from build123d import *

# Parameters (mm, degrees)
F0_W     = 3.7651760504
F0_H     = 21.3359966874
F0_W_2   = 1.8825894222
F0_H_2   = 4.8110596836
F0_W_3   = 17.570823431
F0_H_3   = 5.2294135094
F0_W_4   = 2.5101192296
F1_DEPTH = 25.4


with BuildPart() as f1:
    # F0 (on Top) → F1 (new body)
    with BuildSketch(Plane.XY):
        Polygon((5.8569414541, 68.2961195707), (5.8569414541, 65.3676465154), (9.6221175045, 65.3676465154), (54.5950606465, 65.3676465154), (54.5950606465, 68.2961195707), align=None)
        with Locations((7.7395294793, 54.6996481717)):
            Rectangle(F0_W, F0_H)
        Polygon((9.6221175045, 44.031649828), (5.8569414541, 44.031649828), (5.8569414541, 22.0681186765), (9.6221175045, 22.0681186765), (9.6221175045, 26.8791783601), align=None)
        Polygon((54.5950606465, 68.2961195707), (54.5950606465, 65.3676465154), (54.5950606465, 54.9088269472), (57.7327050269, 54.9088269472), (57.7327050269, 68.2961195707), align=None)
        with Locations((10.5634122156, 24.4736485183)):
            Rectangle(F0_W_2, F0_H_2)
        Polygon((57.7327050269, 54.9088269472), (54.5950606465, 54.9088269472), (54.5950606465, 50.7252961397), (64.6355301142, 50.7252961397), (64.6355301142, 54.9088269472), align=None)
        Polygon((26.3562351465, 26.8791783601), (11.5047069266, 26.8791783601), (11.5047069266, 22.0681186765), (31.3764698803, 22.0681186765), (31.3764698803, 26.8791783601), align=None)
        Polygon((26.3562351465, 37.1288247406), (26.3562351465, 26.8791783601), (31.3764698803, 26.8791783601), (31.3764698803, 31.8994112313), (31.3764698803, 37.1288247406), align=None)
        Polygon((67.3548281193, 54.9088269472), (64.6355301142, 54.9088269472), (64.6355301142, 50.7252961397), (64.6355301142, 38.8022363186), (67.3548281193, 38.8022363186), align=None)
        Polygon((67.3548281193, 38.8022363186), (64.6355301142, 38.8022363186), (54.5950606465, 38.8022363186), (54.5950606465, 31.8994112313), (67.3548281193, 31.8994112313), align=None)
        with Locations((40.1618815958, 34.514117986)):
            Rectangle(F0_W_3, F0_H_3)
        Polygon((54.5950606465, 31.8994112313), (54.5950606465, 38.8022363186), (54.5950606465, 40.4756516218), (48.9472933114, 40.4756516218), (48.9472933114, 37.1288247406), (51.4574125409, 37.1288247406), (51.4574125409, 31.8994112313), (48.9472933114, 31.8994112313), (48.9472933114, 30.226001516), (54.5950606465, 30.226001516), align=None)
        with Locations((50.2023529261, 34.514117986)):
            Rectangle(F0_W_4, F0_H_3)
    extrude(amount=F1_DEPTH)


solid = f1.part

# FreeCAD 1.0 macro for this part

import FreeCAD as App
import Part
import Sketcher

V = App.Vector
Q = App.Units.Quantity

doc = App.newDocument("Part")
params = doc.addObject("Spreadsheet::Sheet", "Params")
for row, (alias, value) in enumerate([
    ("sketch1_height", "1.82 in"),
    ("pad1_length", "1 in"),
], start=1):
    params.set(f"A{row}", alias)
    params.set(f"B{row}", "=" + value)
    params.setAlias(f"B{row}", alias)

body = doc.addObject("PartDesign::Body", "Body")

# Sketch on XY plane
sketch1 = body.newObject("Sketcher::SketchObject", "Sketch")
sketch1.AttachmentSupport = (doc.getObject("XY_Plane"), [""])
sketch1.MapMode = "FlatFace"
sketch1.addGeometry(Part.LineSegment(V(31.4, 31.9, 0), V(48.9, 31.9, 0)), False)
sketch1.addGeometry(Part.LineSegment(V(48.9, 31.9, 0), V(48.9, 30.2, 0)), False)
sketch1.addGeometry(Part.LineSegment(V(48.9, 30.2, 0), V(54.6, 30.2, 0)), False)
sketch1.addGeometry(Part.LineSegment(V(54.6, 30.2, 0), V(54.6, 31.9, 0)), False)
sketch1.addGeometry(Part.LineSegment(V(54.6, 31.9, 0), V(67.4, 31.9, 0)), False)
sketch1.addGeometry(Part.LineSegment(V(67.4, 31.9, 0), V(67.4, 54.9, 0)), False)
sketch1.addGeometry(Part.LineSegment(V(67.4, 54.9, 0), V(57.7, 54.9, 0)), False)
sketch1.addGeometry(Part.LineSegment(V(57.7, 54.9, 0), V(57.7, 68.3, 0)), False)
sketch1.addGeometry(Part.LineSegment(V(57.7, 68.3, 0), V(5.9, 68.3, 0)), False)
sketch1.addGeometry(Part.LineSegment(V(5.9, 68.3, 0), V(5.9, 22.1, 0)), False)
sketch1.addGeometry(Part.LineSegment(V(5.9, 22.1, 0), V(31.4, 22.1, 0)), False)
sketch1.addGeometry(Part.LineSegment(V(31.4, 22.1, 0), V(31.4, 31.9, 0)), False)
sketch1.addGeometry(Part.LineSegment(V(48.9, 40.5, 0), V(48.9, 37.1, 0)), False)
sketch1.addGeometry(Part.LineSegment(V(48.9, 37.1, 0), V(31.4, 37.1, 0)), False)
sketch1.addGeometry(Part.LineSegment(V(31.4, 37.1, 0), V(26.4, 37.1, 0)), False)
sketch1.addGeometry(Part.LineSegment(V(26.4, 37.1, 0), V(26.4, 26.9, 0)), False)
sketch1.addGeometry(Part.LineSegment(V(26.4, 26.9, 0), V(9.6, 26.9, 0)), False)
sketch1.addGeometry(Part.LineSegment(V(9.6, 26.9, 0), V(9.6, 65.4, 0)), False)
sketch1.addGeometry(Part.LineSegment(V(9.6, 65.4, 0), V(54.6, 65.4, 0)), False)
sketch1.addGeometry(Part.LineSegment(V(54.6, 65.4, 0), V(54.6, 50.7, 0)), False)
sketch1.addGeometry(Part.LineSegment(V(54.6, 50.7, 0), V(64.6, 50.7, 0)), False)
sketch1.addGeometry(Part.LineSegment(V(64.6, 50.7, 0), V(64.6, 38.8, 0)), False)
sketch1.addGeometry(Part.LineSegment(V(64.6, 38.8, 0), V(54.6, 38.8, 0)), False)
sketch1.addGeometry(Part.LineSegment(V(54.6, 38.8, 0), V(54.6, 40.5, 0)), False)
sketch1.addGeometry(Part.LineSegment(V(54.6, 40.5, 0), V(48.9, 40.5, 0)), False)
sketch1.addConstraint(Sketcher.Constraint("Coincident", 0, 2, 1, 1))
sketch1.addConstraint(Sketcher.Constraint("Coincident", 1, 2, 2, 1))
sketch1.addConstraint(Sketcher.Constraint("Coincident", 2, 2, 3, 1))
sketch1.addConstraint(Sketcher.Constraint("Coincident", 3, 2, 4, 1))
sketch1.addConstraint(Sketcher.Constraint("Coincident", 4, 2, 5, 1))
sketch1.addConstraint(Sketcher.Constraint("Coincident", 5, 2, 6, 1))
sketch1.addConstraint(Sketcher.Constraint("Coincident", 6, 2, 7, 1))
sketch1.addConstraint(Sketcher.Constraint("Coincident", 7, 2, 8, 1))
sketch1.addConstraint(Sketcher.Constraint("Coincident", 8, 2, 9, 1))
sketch1.addConstraint(Sketcher.Constraint("Coincident", 9, 2, 10, 1))
sketch1.addConstraint(Sketcher.Constraint("Coincident", 10, 2, 11, 1))
sketch1.addConstraint(Sketcher.Constraint("Coincident", 11, 2, 0, 1))
sketch1.addConstraint(Sketcher.Constraint("Coincident", 12, 2, 13, 1))
sketch1.addConstraint(Sketcher.Constraint("Coincident", 13, 2, 14, 1))
sketch1.addConstraint(Sketcher.Constraint("Coincident", 14, 2, 15, 1))
sketch1.addConstraint(Sketcher.Constraint("Coincident", 15, 2, 16, 1))
sketch1.addConstraint(Sketcher.Constraint("Coincident", 16, 2, 17, 1))
sketch1.addConstraint(Sketcher.Constraint("Coincident", 17, 2, 18, 1))
sketch1.addConstraint(Sketcher.Constraint("Coincident", 18, 2, 19, 1))
sketch1.addConstraint(Sketcher.Constraint("Coincident", 19, 2, 20, 1))
sketch1.addConstraint(Sketcher.Constraint("Coincident", 20, 2, 21, 1))
sketch1.addConstraint(Sketcher.Constraint("Coincident", 21, 2, 22, 1))
sketch1.addConstraint(Sketcher.Constraint("Coincident", 22, 2, 23, 1))
sketch1.addConstraint(Sketcher.Constraint("Coincident", 23, 2, 24, 1))
sketch1.addConstraint(Sketcher.Constraint("Coincident", 24, 2, 12, 1))
sketch1.addConstraint(Sketcher.Constraint("Horizontal", 0))
sketch1.addConstraint(Sketcher.Constraint("Vertical", 1))
sketch1.addConstraint(Sketcher.Constraint("Horizontal", 2))
sketch1.addConstraint(Sketcher.Constraint("Vertical", 3))
sketch1.addConstraint(Sketcher.Constraint("Horizontal", 4))
sketch1.addConstraint(Sketcher.Constraint("Vertical", 5))
sketch1.addConstraint(Sketcher.Constraint("Horizontal", 6))
sketch1.addConstraint(Sketcher.Constraint("Vertical", 7))
sketch1.addConstraint(Sketcher.Constraint("Horizontal", 8))
sketch1.addConstraint(Sketcher.Constraint("Vertical", 9))
sketch1.addConstraint(Sketcher.Constraint("Horizontal", 10))
sketch1.addConstraint(Sketcher.Constraint("Vertical", 11))
sketch1.addConstraint(Sketcher.Constraint("Vertical", 12))
sketch1.addConstraint(Sketcher.Constraint("Horizontal", 13))
sketch1.addConstraint(Sketcher.Constraint("Horizontal", 14))
sketch1.addConstraint(Sketcher.Constraint("Vertical", 15))
sketch1.addConstraint(Sketcher.Constraint("Horizontal", 16))
sketch1.addConstraint(Sketcher.Constraint("Vertical", 17))
sketch1.addConstraint(Sketcher.Constraint("Horizontal", 18))
sketch1.addConstraint(Sketcher.Constraint("Vertical", 19))
sketch1.addConstraint(Sketcher.Constraint("Horizontal", 20))
sketch1.addConstraint(Sketcher.Constraint("Vertical", 21))
sketch1.addConstraint(Sketcher.Constraint("Horizontal", 22))
sketch1.addConstraint(Sketcher.Constraint("Vertical", 23))
sketch1.addConstraint(Sketcher.Constraint("Horizontal", 24))
sketch1.addConstraint(Sketcher.Constraint("Horizontal", 0, 2, 3, 2))
sketch1.addConstraint(Sketcher.Constraint("Vertical", 1, 2, 12, 2))
sketch1.addConstraint(Sketcher.Constraint("Vertical", 11, 2, 13, 2))
sketch1.addConstraint(Sketcher.Constraint("Vertical", 3, 2, 18, 2))
sketch1.addConstraint(Sketcher.Constraint("Vertical", 19, 2, 22, 2))
sketch1.addConstraint(Sketcher.Constraint("DistanceY", 9, 2, 9, 1, Q("1.82 in")))
sketch1.addConstraint(Sketcher.Constraint("DistanceY", -1, 1, 1, 2, Q("1.1900001 in")))
sketch1.addConstraint(Sketcher.Constraint("DistanceX", 10, 1, 10, 2, 25.519528))
sketch1.addConstraint(Sketcher.Constraint("DistanceX", 20, 1, 20, 2, 10.040469))
sketch1.addConstraint(Sketcher.Constraint("DistanceY", 1, 2, 1, 1, 1.67341))
sketch1.addConstraint(Sketcher.Constraint("DistanceY", 17, 1, 17, 2, 38.488468))
sketch1.addConstraint(Sketcher.Constraint("DistanceY", 19, 2, 19, 1, 14.64235))
sketch1.addConstraint(Sketcher.Constraint("DistanceY", 21, 2, 21, 1, 11.92306))
sketch1.addConstraint(Sketcher.Constraint("DistanceX", 20, 2, 5, 2, 2.719298))
sketch1.addConstraint(Sketcher.Constraint("DistanceX", 0, 1, 0, 2, 17.570823))
sketch1.addConstraint(Sketcher.Constraint("DistanceX", 2, 1, 2, 2, 5.647767))
sketch1.addConstraint(Sketcher.Constraint("DistanceX", 6, 2, 6, 1, 9.622123))
sketch1.addConstraint(Sketcher.Constraint("DistanceX", 14, 2, 14, 1, 5.020235))
sketch1.addConstraint(Sketcher.Constraint("DistanceX", 16, 2, 16, 1, 16.734118))
sketch1.addConstraint(Sketcher.Constraint("DistanceY", 5, 1, 5, 2, 23.009416))
sketch1.addConstraint(Sketcher.Constraint("DistanceY", 7, 1, 7, 2, 13.387293))
sketch1.addConstraint(Sketcher.Constraint("DistanceY", 12, 2, 12, 1, 3.346827))
sketch1.addConstraint(Sketcher.Constraint("DistanceY", 15, 2, 15, 1, 10.249646))
sketch1.addConstraint(Sketcher.Constraint("DistanceX", -1, 1, 2, 2, 54.595061))
sketch1.addConstraint(Sketcher.Constraint("DistanceY", -1, 1, 15, 2, 26.879178))
sketch1.setExpression("Constraints[55]", "Params.sketch1_height")
pad1 = body.newObject("PartDesign::Pad", "Pad")
pad1.Profile = sketch1
pad1.setExpression("Length", "Params.pad1_length")

doc.recompute()
